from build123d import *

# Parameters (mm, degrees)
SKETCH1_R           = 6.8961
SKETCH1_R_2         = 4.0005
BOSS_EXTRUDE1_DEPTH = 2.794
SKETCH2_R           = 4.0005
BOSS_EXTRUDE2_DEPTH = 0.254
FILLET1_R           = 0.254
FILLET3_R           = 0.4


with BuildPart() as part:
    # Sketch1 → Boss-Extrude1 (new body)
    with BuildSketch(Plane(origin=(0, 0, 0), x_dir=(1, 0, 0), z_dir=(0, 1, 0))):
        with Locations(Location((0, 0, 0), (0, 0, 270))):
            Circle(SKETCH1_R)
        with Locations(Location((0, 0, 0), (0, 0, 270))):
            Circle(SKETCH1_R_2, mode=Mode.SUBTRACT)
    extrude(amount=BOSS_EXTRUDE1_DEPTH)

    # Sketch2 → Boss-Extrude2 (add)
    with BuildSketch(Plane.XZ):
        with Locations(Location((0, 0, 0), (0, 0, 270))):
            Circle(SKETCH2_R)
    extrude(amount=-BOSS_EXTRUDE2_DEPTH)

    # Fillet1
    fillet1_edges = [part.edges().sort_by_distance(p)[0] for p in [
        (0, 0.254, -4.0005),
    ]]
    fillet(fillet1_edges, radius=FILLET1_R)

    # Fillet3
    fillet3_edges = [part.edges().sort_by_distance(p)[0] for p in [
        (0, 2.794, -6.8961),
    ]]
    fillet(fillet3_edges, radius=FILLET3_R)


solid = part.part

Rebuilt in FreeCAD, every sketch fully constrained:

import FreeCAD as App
import Part
import Sketcher

V = App.Vector
Q = App.Units.Quantity


def edges_at(feature, points):
    """Names of the edges that pass closest to the given points."""
    edges = feature.Shape.Edges
    near = lambda p: min(range(len(edges)), key=lambda i: edges[i].distToShape(Part.Vertex(*p))[0])
    return sorted({f"Edge{near(p) + 1}" for p in points})

doc = App.newDocument("Part")
body = doc.addObject("PartDesign::Body", "Body")

# Sketch on XZ plane
sketch1 = body.newObject("Sketcher::SketchObject", "Sketch")
sketch1.AttachmentSupport = (doc.getObject("XZ_Plane"), [""])
sketch1.MapMode = "FlatFace"
sketch1.addGeometry([
    Part.Circle(V(0, 0, 0), V(0, 0, 1), 6.9),
    Part.Circle(V(0, 0, 0), V(0, 0, 1), 4),
], False)
sketch1.addConstraint([
    Sketcher.Constraint("Coincident", 0, 3, -1, 1),
    Sketcher.Constraint("Coincident", 1, 3, -1, 1),
    Sketcher.Constraint("Diameter", 0, Q("0.543 in")),
    Sketcher.Constraint("Diameter", 1, Q("0.315 in")),
])
pad1 = body.newObject("PartDesign::Pad", "Pad")
pad1.Profile = sketch1
pad1.Length = Q("0.11 in")
pad1.Reversed = True

# Sketch on XZ plane
sketch2 = body.newObject("Sketcher::SketchObject", "Sketch001")
sketch2.AttachmentSupport = (doc.getObject("XZ_Plane"), [""])
sketch2.MapMode = "FlatFace"
sketch2.addGeometry(Part.Circle(V(0, 0, 0), V(0, 0, 1), 4), False)
sketch2.addConstraint([
    Sketcher.Constraint("Coincident", 0, 3, -1, 1),
    Sketcher.Constraint("Diameter", 0, Q("0.315 in")),
])
pad2 = body.newObject("PartDesign::Pad", "Pad001")
pad2.Profile = sketch2
pad2.Length = Q("0.01 in")
pad2.Reversed = True
doc.recompute()

fillet = body.newObject("PartDesign::Fillet", "Fillet")
fillet.Base = (pad2, edges_at(pad2, [(0, 0.254, -4)]))
fillet.Radius = Q("0.01 in")
doc.recompute()

fillet2 = body.newObject("PartDesign::Fillet", "Fillet001")
fillet2.Base = (fillet, edges_at(fillet, [(0, 2.794, -6.896)]))
fillet2.Radius = 0.4

doc.recompute()
